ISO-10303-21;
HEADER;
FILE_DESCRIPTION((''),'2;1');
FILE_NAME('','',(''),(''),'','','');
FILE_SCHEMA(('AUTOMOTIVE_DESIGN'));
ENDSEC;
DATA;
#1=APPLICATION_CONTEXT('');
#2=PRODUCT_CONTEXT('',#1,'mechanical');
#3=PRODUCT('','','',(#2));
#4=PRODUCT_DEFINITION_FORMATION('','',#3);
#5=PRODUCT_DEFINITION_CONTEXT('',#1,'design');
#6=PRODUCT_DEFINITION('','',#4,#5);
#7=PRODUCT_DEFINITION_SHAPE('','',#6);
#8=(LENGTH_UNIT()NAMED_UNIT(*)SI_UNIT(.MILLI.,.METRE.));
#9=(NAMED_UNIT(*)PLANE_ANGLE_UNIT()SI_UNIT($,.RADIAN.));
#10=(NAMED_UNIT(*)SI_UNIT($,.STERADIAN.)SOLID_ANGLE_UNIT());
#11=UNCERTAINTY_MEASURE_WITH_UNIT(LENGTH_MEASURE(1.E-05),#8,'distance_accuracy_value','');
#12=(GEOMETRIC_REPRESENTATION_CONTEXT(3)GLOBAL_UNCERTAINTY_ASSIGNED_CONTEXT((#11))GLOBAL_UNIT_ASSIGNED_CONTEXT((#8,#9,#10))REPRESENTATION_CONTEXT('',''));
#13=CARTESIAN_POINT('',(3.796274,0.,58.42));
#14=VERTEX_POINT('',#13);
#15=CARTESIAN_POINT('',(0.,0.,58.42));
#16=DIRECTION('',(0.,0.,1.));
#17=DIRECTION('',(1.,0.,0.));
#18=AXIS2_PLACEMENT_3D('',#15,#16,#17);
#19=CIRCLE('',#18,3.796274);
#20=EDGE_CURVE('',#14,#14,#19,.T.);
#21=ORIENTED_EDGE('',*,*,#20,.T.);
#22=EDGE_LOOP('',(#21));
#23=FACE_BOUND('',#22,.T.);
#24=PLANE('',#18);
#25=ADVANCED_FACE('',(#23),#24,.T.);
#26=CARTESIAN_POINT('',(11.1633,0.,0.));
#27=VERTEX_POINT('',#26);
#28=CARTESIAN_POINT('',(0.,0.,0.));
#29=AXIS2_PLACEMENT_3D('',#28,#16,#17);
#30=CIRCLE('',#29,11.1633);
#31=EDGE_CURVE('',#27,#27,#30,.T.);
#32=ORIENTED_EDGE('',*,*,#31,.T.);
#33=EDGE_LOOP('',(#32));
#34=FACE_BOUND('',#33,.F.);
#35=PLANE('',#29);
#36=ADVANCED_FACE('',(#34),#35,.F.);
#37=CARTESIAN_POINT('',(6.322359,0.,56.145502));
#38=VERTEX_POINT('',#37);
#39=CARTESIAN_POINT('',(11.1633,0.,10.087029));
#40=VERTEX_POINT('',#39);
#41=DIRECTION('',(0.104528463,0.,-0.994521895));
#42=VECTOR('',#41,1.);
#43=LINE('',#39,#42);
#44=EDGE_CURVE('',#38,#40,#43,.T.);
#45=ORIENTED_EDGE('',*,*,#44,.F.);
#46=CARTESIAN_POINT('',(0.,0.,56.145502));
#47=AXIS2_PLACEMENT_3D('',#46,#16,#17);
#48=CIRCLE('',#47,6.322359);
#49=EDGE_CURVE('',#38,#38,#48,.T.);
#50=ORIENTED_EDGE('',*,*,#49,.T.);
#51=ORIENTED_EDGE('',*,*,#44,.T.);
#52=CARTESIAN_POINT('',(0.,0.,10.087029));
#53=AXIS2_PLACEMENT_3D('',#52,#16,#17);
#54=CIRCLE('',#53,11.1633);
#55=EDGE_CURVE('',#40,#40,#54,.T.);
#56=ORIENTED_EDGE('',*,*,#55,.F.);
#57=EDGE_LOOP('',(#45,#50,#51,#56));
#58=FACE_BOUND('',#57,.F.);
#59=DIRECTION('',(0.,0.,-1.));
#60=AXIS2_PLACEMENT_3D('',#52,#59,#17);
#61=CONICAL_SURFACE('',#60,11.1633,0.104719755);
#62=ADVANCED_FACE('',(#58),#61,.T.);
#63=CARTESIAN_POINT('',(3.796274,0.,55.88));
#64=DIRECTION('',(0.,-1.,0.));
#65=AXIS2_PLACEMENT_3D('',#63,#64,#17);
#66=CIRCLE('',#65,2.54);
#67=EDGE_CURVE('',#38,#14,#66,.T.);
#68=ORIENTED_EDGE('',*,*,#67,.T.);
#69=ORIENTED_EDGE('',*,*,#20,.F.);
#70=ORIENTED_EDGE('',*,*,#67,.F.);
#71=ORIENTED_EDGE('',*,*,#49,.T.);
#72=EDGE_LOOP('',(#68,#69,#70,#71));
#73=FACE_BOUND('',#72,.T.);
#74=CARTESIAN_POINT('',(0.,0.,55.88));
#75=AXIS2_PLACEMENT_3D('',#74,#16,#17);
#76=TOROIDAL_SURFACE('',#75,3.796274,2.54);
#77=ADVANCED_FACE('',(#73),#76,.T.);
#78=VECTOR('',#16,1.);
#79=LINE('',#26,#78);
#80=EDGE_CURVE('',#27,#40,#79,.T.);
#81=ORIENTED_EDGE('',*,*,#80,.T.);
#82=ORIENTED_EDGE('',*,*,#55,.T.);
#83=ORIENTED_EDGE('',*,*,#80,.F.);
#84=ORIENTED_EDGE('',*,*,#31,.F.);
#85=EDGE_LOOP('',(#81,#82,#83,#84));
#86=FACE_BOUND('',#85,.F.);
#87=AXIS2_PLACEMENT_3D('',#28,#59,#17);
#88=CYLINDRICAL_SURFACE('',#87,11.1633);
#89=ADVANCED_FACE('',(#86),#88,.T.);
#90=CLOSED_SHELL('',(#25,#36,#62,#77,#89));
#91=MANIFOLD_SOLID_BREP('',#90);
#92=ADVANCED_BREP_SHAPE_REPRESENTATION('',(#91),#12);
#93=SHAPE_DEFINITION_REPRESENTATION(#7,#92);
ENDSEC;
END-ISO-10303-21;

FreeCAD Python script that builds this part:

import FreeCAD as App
import Part
import Sketcher
Q = App.Units.Quantity


def edges_at(feature, points):
    """Names of the edges that pass closest to the given points."""
    edges = feature.Shape.Edges
    near = lambda p: min(range(len(edges)), key=lambda i: edges[i].distToShape(Part.Vertex(*p))[0])
    return sorted({f"Edge{near(p) + 1}" for p in points})

doc = App.newDocument("Part")
body = doc.addObject("PartDesign::Body", "Body")

# Sketch on XY plane
sketch1 = doc.addObject("Sketcher::SketchObject", "Sketch")
body.addObject(sketch1)
sketch1.AttachmentSupport = (doc.XY_Plane, [""])
sketch1.MapMode = "FlatFace"
sketch1.addGeometry(Part.Circle(App.Vector(0, 0, 0), App.Vector(0, 0, 1), 11), False)
sketch1.addConstraint([
    Sketcher.Constraint("Coincident", 0, 3, -1, 1),
    Sketcher.Constraint("Diameter", 0, Q("0.879 in")),
])
pad1 = doc.addObject("PartDesign::Pad", "Pad")
body.addObject(pad1)
pad1.Profile = sketch1
pad1.Length = Q("2.3 in")
doc.recompute()

chamfer = doc.addObject("PartDesign::Chamfer", "Chamfer")
body.addObject(chamfer)
chamfer.Base = (pad1, edges_at(pad1, [(-11.163, 0, 58.42)]))
chamfer.ChamferType = "Two distances"
chamfer.Size = Q("0.2 in")
chamfer.Size2 = 48.332971
chamfer.FlipDirection = True
doc.recompute()

fillet = doc.addObject("PartDesign::Fillet", "Fillet")
body.addObject(fillet)
fillet.Base = (chamfer, edges_at(chamfer, [(-6.083, 0, 58.42)]))
fillet.Radius = Q("0.1 in")

doc.recompute()
